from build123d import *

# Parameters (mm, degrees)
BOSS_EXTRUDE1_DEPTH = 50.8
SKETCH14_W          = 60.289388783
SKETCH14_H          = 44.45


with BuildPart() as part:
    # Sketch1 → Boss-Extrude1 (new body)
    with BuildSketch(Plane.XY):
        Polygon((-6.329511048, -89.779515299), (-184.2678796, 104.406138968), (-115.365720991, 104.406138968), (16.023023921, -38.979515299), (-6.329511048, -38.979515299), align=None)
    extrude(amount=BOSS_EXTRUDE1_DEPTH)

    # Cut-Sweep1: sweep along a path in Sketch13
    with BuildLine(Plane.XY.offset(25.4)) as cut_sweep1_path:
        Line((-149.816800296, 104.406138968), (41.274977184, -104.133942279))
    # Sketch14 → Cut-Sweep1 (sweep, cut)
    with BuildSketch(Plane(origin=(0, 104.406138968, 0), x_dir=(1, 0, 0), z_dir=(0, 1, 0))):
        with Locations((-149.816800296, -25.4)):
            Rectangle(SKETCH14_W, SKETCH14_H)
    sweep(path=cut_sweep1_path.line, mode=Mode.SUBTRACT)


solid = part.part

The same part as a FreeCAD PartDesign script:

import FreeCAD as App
import Part
import Sketcher

V = App.Vector
Q = App.Units.Quantity

doc = App.newDocument("Part")
params = doc.addObject("Spreadsheet::Sheet", "Params")
for row, (alias, value) in enumerate([
    ("sketch1_height", "2 in"),
    ("pad1_length", "2 in"),
    ("sketch2_height", "1.75 in"),
], start=1):
    params.set(f"A{row}", alias)
    params.set(f"B{row}", "=" + value)
    params.setAlias(f"B{row}", alias)

body = doc.addObject("PartDesign::Body", "Body")

# Sketch on XY plane
sketch1 = doc.addObject("Sketcher::SketchObject", "Sketch")
body.addObject(sketch1)
sketch1.AttachmentSupport = (doc.XY_Plane, [""])
sketch1.MapMode = "FlatFace"
sketch1.addGeometry(Part.LineSegment(V(-184, 104, 0), V(-6, -90, 0)), False)
sketch1.addGeometry(Part.LineSegment(V(-6, -90, 0), V(-6, -39, 0)), False)
sketch1.addGeometry(Part.LineSegment(V(-6, -39, 0), V(16, -39, 0)), False)
sketch1.addGeometry(Part.LineSegment(V(16, -39, 0), V(-115, 104, 0)), False)
sketch1.addGeometry(Part.LineSegment(V(-115, 104, 0), V(-184, 104, 0)), False)
sketch1.addConstraint(Sketcher.Constraint("Coincident", 0, 2, 1, 1))
sketch1.addConstraint(Sketcher.Constraint("Coincident", 1, 2, 2, 1))
sketch1.addConstraint(Sketcher.Constraint("Coincident", 2, 2, 3, 1))
sketch1.addConstraint(Sketcher.Constraint("Coincident", 3, 2, 4, 1))
sketch1.addConstraint(Sketcher.Constraint("Coincident", 4, 2, 0, 1))
sketch1.addConstraint(Sketcher.Constraint("Vertical", 1))
sketch1.addConstraint(Sketcher.Constraint("Horizontal", 2))
sketch1.addConstraint(Sketcher.Constraint("Horizontal", 4))
sketch1.addConstraint(Sketcher.Constraint("Parallel", 0, 3))
sketch1.addConstraint(Sketcher.Constraint("DistanceY", 1, 1, 1, 2, Q("2 in")))
sketch1.addConstraint(Sketcher.Constraint("Angle", 0, Q("-47.5 deg")))
sketch1.addConstraint(Sketcher.Constraint("Distance", 0, Q("263.382101 mm")))
sketch1.addConstraint(Sketcher.Constraint("DistanceX", 4, 2, 4, 1, Q("68.902159 mm")))
sketch1.addConstraint(Sketcher.Constraint("DistanceX", 0, 2, -1, 1, Q("6.329511 mm")))
sketch1.addConstraint(Sketcher.Constraint("DistanceY", -1, 1, 3, 2, Q("104.406139 mm")))
sketch1.setExpression("Constraints[9]", "Params.sketch1_height")
pad1 = doc.addObject("PartDesign::Pad", "Pad")
body.addObject(pad1)
pad1.Profile = sketch1
pad1.setExpression("Length", "Params.pad1_length")

# Sketch on XZ plane
sketch2 = doc.addObject("Sketcher::SketchObject", "Sketch001")
body.addObject(sketch2)
sketch2.AttachmentSupport = (doc.XZ_Plane, [""])
sketch2.MapMode = "FlatFace"
sketch2.AttachmentOffset = App.Placement(V(0, 0, -104.406139), App.Rotation())
sketch2.addGeometry(Part.LineSegment(V(-180, 3, 0), V(-180, 48, 0)), False)
sketch2.addGeometry(Part.LineSegment(V(-180, 48, 0), V(-120, 48, 0)), False)
sketch2.addGeometry(Part.LineSegment(V(-120, 48, 0), V(-120, 3, 0)), False)
sketch2.addGeometry(Part.LineSegment(V(-120, 3, 0), V(-180, 3, 0)), False)
sketch2.addConstraint(Sketcher.Constraint("Coincident", 0, 2, 1, 1))
sketch2.addConstraint(Sketcher.Constraint("Coincident", 1, 2, 2, 1))
sketch2.addConstraint(Sketcher.Constraint("Coincident", 2, 2, 3, 1))
sketch2.addConstraint(Sketcher.Constraint("Coincident", 3, 2, 0, 1))
sketch2.addConstraint(Sketcher.Constraint("Vertical", 0))
sketch2.addConstraint(Sketcher.Constraint("Horizontal", 1))
sketch2.addConstraint(Sketcher.Constraint("Vertical", 2))
sketch2.addConstraint(Sketcher.Constraint("Horizontal", 3))
sketch2.addConstraint(Sketcher.Constraint("DistanceY", 0, 1, 0, 2, Q("1.75 in")))
sketch2.addConstraint(Sketcher.Constraint("DistanceY", -1, 1, 0, 2, Q("1.875 in")))
sketch2.addConstraint(Sketcher.Constraint("DistanceX", 1, 1, 1, 2, Q("60.289389 mm")))
sketch2.addConstraint(Sketcher.Constraint("DistanceX", 0, 2, -1, 1, Q("179.961495 mm")))
sketch2.setExpression("Constraints[8]", "Params.sketch2_height")

# Sketch on an angled plane
sketch3 = doc.addObject("Sketcher::SketchObject", "Sketch002")
body.addObject(sketch3)
sketch3.Placement = App.Placement(V(-29.432676, -26.970079, 0), App.Rotation(V(0.675590208, -0.737277337, 0), V(0, 0, 1.000000001), V(-0.737277337, -0.675590208, 0), "ZXY"))
sketch3.addGeometry(Part.LineSegment(V(-178, 25, 0), V(105, 25, 0)), False)
sketch3.addConstraint(Sketcher.Constraint("Horizontal", 0))
sketch3.addConstraint(Sketcher.Constraint("DistanceY", -1, 1, 0, 1, Q("1 in")))
sketch3.addConstraint(Sketcher.Constraint("DistanceX", 0, 1, 0, 2, Q("282.85161 mm")))
sketch3.addConstraint(Sketcher.Constraint("DistanceX", 0, 1, -1, 1, Q("178.191043 mm")))
doc.recompute()

subtractivepipe = doc.addObject("PartDesign::SubtractivePipe", "SubtractivePipe")
body.addObject(subtractivepipe)
subtractivepipe.Profile = sketch2
subtractivepipe.Spine = (sketch3, ["Edge1"])

doc.recompute()
